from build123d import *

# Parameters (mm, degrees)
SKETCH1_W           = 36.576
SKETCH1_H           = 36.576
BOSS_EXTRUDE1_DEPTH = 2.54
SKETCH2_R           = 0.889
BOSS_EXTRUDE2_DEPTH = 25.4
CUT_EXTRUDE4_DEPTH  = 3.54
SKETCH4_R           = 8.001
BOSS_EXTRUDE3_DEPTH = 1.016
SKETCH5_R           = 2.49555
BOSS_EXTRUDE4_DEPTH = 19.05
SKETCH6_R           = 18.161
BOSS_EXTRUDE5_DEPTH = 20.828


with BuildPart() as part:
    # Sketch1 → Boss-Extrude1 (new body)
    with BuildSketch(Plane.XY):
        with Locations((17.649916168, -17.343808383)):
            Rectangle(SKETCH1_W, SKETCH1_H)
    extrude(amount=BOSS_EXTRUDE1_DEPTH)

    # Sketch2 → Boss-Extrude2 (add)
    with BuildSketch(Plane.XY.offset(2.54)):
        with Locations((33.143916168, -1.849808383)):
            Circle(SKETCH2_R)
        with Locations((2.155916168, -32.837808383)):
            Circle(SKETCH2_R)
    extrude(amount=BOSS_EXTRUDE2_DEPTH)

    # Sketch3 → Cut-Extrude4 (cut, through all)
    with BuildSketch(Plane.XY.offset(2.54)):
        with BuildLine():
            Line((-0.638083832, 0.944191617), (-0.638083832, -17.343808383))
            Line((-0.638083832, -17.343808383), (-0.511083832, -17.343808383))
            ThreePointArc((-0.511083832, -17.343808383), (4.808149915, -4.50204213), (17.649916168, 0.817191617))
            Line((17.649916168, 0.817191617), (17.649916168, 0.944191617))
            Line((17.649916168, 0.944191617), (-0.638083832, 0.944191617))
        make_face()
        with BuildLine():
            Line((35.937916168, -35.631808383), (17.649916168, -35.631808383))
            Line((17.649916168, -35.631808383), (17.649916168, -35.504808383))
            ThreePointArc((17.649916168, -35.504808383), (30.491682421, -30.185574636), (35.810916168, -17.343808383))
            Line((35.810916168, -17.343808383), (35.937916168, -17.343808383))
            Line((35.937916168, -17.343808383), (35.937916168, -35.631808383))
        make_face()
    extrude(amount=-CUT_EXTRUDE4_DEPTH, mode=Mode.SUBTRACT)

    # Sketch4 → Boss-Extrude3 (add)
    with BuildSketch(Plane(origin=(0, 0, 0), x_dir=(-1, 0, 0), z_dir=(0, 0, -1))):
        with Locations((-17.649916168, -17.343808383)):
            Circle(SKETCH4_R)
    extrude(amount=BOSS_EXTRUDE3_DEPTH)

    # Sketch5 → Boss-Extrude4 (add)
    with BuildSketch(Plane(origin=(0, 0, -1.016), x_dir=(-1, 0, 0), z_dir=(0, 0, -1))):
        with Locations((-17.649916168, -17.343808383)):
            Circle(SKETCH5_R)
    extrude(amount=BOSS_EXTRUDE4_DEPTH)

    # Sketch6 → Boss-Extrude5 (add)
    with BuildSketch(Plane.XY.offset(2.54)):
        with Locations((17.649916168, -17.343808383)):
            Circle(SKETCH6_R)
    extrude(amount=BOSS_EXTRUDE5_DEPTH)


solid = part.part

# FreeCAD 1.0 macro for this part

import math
import FreeCAD as App
import Part
import Sketcher

V = App.Vector
Q = App.Units.Quantity

doc = App.newDocument("Part")
body = doc.addObject("PartDesign::Body", "Body")

# Sketch on XY plane
sketch1 = body.newObject("Sketcher::SketchObject", "Sketch")
sketch1.AttachmentSupport = (doc.getObject("XY_Plane"), [""])
sketch1.MapMode = "FlatFace"
sketch1.addGeometry([
    Part.LineSegment(V(-1, 1, 0), V(-1, -36, 0)),
    Part.LineSegment(V(-1, -36, 0), V(36, -36, 0)),
    Part.LineSegment(V(36, -36, 0), V(36, 1, 0)),
    Part.LineSegment(V(36, 1, 0), V(-1, 1, 0)),
], False)
sketch1.addConstraint([
    Sketcher.Constraint("Coincident", 0, 2, 1, 1),
    Sketcher.Constraint("Coincident", 1, 2, 2, 1),
    Sketcher.Constraint("Coincident", 2, 2, 3, 1),
    Sketcher.Constraint("Coincident", 3, 2, 0, 1),
    Sketcher.Constraint("Vertical", 0),
    Sketcher.Constraint("Horizontal", 1),
    Sketcher.Constraint("Vertical", 2),
    Sketcher.Constraint("Horizontal", 3),
    Sketcher.Constraint("Equal", 3, 0),
    Sketcher.Constraint("DistanceX", 1, 1, 1, 2, Q("1.44 in")),
    Sketcher.Constraint("DistanceY", 0, 2, -1, 1, Q("35.631808 mm")),
    Sketcher.Constraint("DistanceX", 0, 2, -1, 1, Q("0.638084 mm")),
])
pad1 = body.newObject("PartDesign::Pad", "Pad")
pad1.Profile = sketch1
pad1.Length = Q("0.1 in")

# Sketch on XY plane
sketch2 = body.newObject("Sketcher::SketchObject", "Sketch001")
sketch2.AttachmentSupport = (doc.getObject("XY_Plane"), [""])
sketch2.MapMode = "FlatFace"
sketch2.AttachmentOffset = App.Placement(V(0, 0, 0.1 * 25.4), App.Rotation())
sketch2.addGeometry([
    Part.Circle(V(33.1, -1.8, 0), V(0, 0, 1), 0.9),
    Part.Circle(V(2.2, -32.8, 0), V(0, 0, 1), 0.9),
], False)
sketch2.addConstraint([
    Sketcher.Constraint("Equal", 0, 1),
    Sketcher.Constraint("Diameter", 0, Q("0.07 in")),
    Sketcher.Constraint("DistanceX", 1, 3, 0, 3, Q("1.22 in")),
    Sketcher.Constraint("DistanceY", 1, 3, 0, 3, Q("1.22 in")),
    Sketcher.Constraint("DistanceY", 0, 3, -1, 1, Q("1.849808 mm")),
    Sketcher.Constraint("DistanceX", -1, 1, 0, 3, Q("33.143916 mm")),
])
pad2 = body.newObject("PartDesign::Pad", "Pad001")
pad2.Profile = sketch2
pad2.Length = Q("1 in")

# Sketch on XY plane
sketch3 = body.newObject("Sketcher::SketchObject", "Sketch002")
sketch3.AttachmentSupport = (doc.getObject("XY_Plane"), [""])
sketch3.MapMode = "FlatFace"
sketch3.AttachmentOffset = App.Placement(V(0, 0, 0.1 * 25.4), App.Rotation())
sketch3.addGeometry([
    Part.LineSegment(V(-0.64, 0.94, 0), V(-0.64, -17.34, 0)),  # 0
    Part.LineSegment(V(-0.64, -17.34, 0), V(-0.51, -17.34, 0)),  # 1
    Part.ArcOfCircle(Part.Circle(V(17.65, -17.34, 0), V(0, 0, 1), 18.16), math.radians(90), math.radians(180)),  # 2
    Part.LineSegment(V(17.65, 0.82, 0), V(17.65, 0.94, 0)),  # 3
    Part.LineSegment(V(17.65, 0.94, 0), V(-0.64, 0.94, 0)),  # 4
    Part.LineSegment(V(17.65, -35.63, 0), V(35.94, -35.63, 0)),  # 5
    Part.LineSegment(V(35.94, -35.63, 0), V(35.94, -17.34, 0)),  # 6
    Part.LineSegment(V(35.94, -17.34, 0), V(35.81, -17.34, 0)),  # 7
    Part.ArcOfCircle(Part.Circle(V(17.65, -17.34, 0), V(0, 0, 1), 18.16), math.radians(-90), math.radians(0)),  # 8
    Part.LineSegment(V(17.65, -35.5, 0), V(17.65, -35.63, 0)),  # 9
], False)
sketch3.addConstraint([
    Sketcher.Constraint("Coincident", 0, 2, 1, 1),
    Sketcher.Constraint("Coincident", 1, 2, 2, 2),
    Sketcher.Constraint("Coincident", 2, 1, 3, 1),
    Sketcher.Constraint("Coincident", 3, 2, 4, 1),
    Sketcher.Constraint("Coincident", 4, 2, 0, 1),
    Sketcher.Constraint("Coincident", 5, 2, 6, 1),
    Sketcher.Constraint("Coincident", 6, 2, 7, 1),
    Sketcher.Constraint("Coincident", 7, 2, 8, 2),
    Sketcher.Constraint("Coincident", 8, 1, 9, 1),
    Sketcher.Constraint("Coincident", 9, 2, 5, 1),
    Sketcher.Constraint("Vertical", 0),
    Sketcher.Constraint("Horizontal", 1),
    Sketcher.Constraint("Vertical", 3),
    Sketcher.Constraint("Horizontal", 4),
    Sketcher.Constraint("Horizontal", 5),
    Sketcher.Constraint("Vertical", 6),
    Sketcher.Constraint("Horizontal", 7),
    Sketcher.Constraint("Vertical", 9),
    Sketcher.Constraint("Coincident", 8, 3, 2, 3),
    Sketcher.Constraint("Equal", 2, 8),
    Sketcher.Constraint("Horizontal", 8, 3, 0, 2),
    Sketcher.Constraint("Horizontal", 1, 2, 6, 2),
    Sketcher.Constraint("Vertical", 8, 3, 2, 1),
    Sketcher.Constraint("Vertical", 3, 2, 8, 1),
    Sketcher.Constraint("Equal", 4, 5),
    Sketcher.Constraint("Equal", 5, 0),
    Sketcher.Constraint("Equal", 0, 6),
    Sketcher.Constraint("Radius", 2, Q("0.715 in")),
    Sketcher.Constraint("DistanceX", 4, 2, 4, 1, Q("0.72 in")),
    Sketcher.Constraint("DistanceY", 2, 3, -1, 1, Q("17.343808 mm")),
    Sketcher.Constraint("DistanceX", -1, 1, 2, 3, Q("17.649916 mm")),
])
pocket1 = body.newObject("PartDesign::Pocket", "Pocket")
pocket1.Profile = sketch3
pocket1.Type = "ThroughAll"

# Sketch on XY plane
sketch4 = body.newObject("Sketcher::SketchObject", "Sketch003")
sketch4.AttachmentSupport = (doc.getObject("XY_Plane"), [""])
sketch4.MapMode = "FlatFace"
sketch4.addGeometry(Part.Circle(V(18, -17, 0), V(0, 0, 1), 8), False)
sketch4.addConstraint([
    Sketcher.Constraint("Diameter", 0, Q("0.63 in")),
    Sketcher.Constraint("DistanceY", 0, 3, -1, 1, Q("17.343808 mm")),
    Sketcher.Constraint("DistanceX", -1, 1, 0, 3, Q("17.649916 mm")),
])
pad3 = body.newObject("PartDesign::Pad", "Pad002")
pad3.Profile = sketch4
pad3.Length = Q("0.04 in")
pad3.Reversed = True

# Sketch on XY plane
sketch5 = body.newObject("Sketcher::SketchObject", "Sketch004")
sketch5.AttachmentSupport = (doc.getObject("XY_Plane"), [""])
sketch5.MapMode = "FlatFace"
sketch5.AttachmentOffset = App.Placement(V(0, 0, -0.04 * 25.4), App.Rotation())
sketch5.addGeometry(Part.Circle(V(17.6, -17.3, 0), V(0, 0, 1), 2.5), False)
sketch5.addConstraint([
    Sketcher.Constraint("Diameter", 0, Q("0.1965 in")),
    Sketcher.Constraint("DistanceY", 0, 3, -1, 1, Q("17.343808 mm")),
    Sketcher.Constraint("DistanceX", -1, 1, 0, 3, Q("17.649916 mm")),
])
pad4 = body.newObject("PartDesign::Pad", "Pad003")
pad4.Profile = sketch5
pad4.Length = Q("0.75 in")
pad4.Reversed = True

# Sketch on XY plane
sketch6 = body.newObject("Sketcher::SketchObject", "Sketch005")
sketch6.AttachmentSupport = (doc.getObject("XY_Plane"), [""])
sketch6.MapMode = "FlatFace"
sketch6.AttachmentOffset = App.Placement(V(0, 0, 0.1 * 25.4), App.Rotation())
sketch6.addGeometry(Part.Circle(V(18, -17, 0), V(0, 0, 1), 18), False)
sketch6.addConstraint([
    Sketcher.Constraint("Diameter", 0, Q("1.43 in")),
    Sketcher.Constraint("DistanceY", 0, 3, -1, 1, Q("17.343808 mm")),
    Sketcher.Constraint("DistanceX", -1, 1, 0, 3, Q("17.649916 mm")),
])
pad5 = body.newObject("PartDesign::Pad", "Pad004")
pad5.Profile = sketch6
pad5.Length = Q("0.82 in")

doc.recompute()
